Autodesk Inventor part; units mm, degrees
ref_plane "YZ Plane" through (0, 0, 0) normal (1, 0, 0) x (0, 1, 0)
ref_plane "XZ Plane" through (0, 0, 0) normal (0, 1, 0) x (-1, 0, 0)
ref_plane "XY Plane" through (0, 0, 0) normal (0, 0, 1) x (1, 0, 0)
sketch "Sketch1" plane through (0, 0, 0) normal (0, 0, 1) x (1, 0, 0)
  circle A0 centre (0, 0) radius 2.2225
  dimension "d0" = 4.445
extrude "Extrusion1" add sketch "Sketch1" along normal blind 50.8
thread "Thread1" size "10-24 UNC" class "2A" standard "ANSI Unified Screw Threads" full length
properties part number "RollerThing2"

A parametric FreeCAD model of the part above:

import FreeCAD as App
import Part
import Sketcher

V = App.Vector
Q = App.Units.Quantity

doc = App.newDocument("Part")
body = doc.addObject("PartDesign::Body", "Body")

# Sketch on XY plane
sketch1 = doc.addObject("Sketcher::SketchObject", "Sketch")
body.addObject(sketch1)
sketch1.AttachmentSupport = (doc.XY_Plane, [""])
sketch1.MapMode = "FlatFace"
sketch1.addGeometry(Part.Circle(V(0, 0, 0), V(0, 0, 1), 2.2), False)
sketch1.addConstraint([
    Sketcher.Constraint("Coincident", 0, 3, -1, 1),
    Sketcher.Constraint("Diameter", 0, Q("0.175 in")),
])
pad1 = doc.addObject("PartDesign::Pad", "Pad")
body.addObject(pad1)
pad1.Profile = sketch1
pad1.Length = Q("2 in")

doc.recompute()
